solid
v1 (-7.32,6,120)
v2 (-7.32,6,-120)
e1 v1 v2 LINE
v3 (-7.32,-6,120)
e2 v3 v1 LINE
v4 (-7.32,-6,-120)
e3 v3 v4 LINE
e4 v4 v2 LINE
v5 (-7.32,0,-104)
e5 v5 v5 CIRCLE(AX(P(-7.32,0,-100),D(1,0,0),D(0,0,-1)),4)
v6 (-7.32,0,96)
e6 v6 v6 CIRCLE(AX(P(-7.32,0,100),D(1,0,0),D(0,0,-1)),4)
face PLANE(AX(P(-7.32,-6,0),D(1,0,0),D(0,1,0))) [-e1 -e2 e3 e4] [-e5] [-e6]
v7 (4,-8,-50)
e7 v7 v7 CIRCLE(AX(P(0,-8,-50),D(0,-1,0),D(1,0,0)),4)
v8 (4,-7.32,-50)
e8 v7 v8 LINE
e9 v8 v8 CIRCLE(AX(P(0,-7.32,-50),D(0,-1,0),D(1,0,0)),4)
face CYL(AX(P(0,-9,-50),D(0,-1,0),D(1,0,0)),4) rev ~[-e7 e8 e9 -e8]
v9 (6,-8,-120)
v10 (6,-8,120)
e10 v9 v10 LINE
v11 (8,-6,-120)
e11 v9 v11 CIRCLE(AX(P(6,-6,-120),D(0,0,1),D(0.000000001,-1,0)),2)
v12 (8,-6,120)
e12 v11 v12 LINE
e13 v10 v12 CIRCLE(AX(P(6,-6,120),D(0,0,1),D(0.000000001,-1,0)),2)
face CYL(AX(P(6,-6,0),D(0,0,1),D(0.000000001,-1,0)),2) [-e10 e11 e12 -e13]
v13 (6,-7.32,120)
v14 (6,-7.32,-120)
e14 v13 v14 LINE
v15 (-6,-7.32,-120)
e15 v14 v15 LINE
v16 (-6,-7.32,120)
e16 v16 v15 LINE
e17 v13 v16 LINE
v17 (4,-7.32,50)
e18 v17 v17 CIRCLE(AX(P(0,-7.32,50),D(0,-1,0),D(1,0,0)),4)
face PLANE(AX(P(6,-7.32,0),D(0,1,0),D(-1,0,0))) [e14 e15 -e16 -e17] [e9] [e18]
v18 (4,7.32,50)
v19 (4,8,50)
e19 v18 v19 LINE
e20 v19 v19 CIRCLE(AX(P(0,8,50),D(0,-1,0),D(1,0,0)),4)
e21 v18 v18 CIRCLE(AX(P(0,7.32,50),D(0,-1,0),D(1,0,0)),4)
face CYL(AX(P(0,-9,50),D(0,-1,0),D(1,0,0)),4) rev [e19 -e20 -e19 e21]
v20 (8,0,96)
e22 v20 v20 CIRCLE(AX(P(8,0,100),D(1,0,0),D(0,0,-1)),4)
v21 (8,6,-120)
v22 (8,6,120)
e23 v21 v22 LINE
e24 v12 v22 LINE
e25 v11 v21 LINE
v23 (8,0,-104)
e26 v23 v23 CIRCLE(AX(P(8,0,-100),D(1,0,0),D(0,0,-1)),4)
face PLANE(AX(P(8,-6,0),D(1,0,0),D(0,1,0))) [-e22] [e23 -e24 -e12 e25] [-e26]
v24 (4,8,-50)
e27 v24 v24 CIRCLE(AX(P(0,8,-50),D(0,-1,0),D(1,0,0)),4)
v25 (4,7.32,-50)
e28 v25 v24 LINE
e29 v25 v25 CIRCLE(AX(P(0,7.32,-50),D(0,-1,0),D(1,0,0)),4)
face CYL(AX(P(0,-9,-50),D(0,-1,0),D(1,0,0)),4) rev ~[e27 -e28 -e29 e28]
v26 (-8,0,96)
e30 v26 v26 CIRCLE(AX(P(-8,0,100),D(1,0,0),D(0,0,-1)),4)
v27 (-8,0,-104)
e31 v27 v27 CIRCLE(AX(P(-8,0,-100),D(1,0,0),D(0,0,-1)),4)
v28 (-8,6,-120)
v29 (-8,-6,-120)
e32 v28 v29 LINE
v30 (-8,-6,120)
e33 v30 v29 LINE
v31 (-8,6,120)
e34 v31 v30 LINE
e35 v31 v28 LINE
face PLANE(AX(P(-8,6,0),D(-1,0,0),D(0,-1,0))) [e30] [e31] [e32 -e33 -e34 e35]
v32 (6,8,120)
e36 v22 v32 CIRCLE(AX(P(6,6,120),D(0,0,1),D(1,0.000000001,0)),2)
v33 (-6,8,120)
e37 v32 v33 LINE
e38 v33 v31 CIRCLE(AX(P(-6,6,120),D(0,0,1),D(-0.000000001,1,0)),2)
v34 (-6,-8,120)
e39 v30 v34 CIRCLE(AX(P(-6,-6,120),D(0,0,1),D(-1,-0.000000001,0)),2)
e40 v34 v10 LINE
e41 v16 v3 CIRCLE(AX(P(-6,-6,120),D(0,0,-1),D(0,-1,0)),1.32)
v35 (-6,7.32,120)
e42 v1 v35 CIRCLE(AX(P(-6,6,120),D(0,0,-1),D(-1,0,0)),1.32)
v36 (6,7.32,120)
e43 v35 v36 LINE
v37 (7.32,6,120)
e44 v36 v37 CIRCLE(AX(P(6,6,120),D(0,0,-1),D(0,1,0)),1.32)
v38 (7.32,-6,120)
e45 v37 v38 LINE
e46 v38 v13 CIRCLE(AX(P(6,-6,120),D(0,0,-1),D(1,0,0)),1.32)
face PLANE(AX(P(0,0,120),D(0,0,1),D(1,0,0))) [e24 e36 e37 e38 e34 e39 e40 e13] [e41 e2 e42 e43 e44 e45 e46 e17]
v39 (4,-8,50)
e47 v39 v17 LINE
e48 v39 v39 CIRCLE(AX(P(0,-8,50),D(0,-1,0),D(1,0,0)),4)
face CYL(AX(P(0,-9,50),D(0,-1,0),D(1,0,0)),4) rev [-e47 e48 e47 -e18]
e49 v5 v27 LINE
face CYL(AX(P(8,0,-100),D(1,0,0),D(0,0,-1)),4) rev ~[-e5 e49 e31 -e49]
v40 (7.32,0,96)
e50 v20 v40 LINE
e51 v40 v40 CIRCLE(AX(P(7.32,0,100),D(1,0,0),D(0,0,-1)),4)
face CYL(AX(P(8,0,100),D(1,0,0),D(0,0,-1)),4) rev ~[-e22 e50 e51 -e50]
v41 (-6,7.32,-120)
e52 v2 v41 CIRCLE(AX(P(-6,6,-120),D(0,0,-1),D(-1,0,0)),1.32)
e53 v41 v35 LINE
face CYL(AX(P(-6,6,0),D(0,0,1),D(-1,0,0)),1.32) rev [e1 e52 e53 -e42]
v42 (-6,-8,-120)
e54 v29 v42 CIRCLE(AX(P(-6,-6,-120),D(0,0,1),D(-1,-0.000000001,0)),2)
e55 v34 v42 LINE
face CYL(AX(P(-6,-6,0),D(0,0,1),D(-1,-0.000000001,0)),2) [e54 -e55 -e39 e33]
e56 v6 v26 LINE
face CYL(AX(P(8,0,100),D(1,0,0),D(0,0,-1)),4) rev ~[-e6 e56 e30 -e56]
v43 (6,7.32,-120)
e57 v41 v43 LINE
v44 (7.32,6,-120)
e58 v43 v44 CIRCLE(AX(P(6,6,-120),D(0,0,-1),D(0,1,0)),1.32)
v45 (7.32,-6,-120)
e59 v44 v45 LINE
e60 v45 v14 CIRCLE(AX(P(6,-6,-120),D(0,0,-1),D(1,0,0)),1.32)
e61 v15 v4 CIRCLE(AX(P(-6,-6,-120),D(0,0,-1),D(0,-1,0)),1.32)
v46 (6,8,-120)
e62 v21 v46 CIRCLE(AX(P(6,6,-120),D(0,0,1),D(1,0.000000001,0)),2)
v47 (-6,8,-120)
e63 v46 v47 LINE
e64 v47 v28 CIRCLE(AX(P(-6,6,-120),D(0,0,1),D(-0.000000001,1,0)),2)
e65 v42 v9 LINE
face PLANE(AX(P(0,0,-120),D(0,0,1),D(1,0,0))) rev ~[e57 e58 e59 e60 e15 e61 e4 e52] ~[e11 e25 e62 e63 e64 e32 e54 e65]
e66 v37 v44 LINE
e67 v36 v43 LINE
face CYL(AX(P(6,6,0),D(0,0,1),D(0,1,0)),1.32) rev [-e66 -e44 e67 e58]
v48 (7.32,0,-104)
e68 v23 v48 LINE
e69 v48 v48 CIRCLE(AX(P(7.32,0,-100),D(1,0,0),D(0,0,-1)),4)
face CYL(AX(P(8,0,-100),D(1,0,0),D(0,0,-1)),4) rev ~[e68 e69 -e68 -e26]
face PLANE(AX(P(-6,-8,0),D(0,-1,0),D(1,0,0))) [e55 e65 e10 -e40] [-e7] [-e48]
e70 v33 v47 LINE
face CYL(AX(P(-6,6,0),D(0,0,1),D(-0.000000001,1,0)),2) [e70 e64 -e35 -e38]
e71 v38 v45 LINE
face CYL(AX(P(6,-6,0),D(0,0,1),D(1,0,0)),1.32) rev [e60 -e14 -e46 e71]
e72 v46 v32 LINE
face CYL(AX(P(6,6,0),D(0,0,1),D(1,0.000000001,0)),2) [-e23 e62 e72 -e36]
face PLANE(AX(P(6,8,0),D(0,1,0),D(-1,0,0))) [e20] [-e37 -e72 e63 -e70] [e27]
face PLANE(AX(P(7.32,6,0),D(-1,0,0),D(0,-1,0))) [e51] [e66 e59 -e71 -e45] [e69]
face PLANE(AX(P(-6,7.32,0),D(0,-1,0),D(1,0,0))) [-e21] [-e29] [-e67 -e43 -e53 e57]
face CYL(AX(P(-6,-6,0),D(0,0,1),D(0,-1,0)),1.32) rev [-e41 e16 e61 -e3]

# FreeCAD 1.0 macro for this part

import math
import FreeCAD as App
import Part
import Sketcher

V = App.Vector
Q = App.Units.Quantity

doc = App.newDocument("Part")
body = doc.addObject("PartDesign::Body", "Body")

# Sketch on XY plane
sketch1 = doc.addObject("Sketcher::SketchObject", "Sketch")
body.addObject(sketch1)
sketch1.AttachmentSupport = (doc.XY_Plane, [""])
sketch1.MapMode = "FlatFace"
sketch1.addGeometry([
    Part.LineSegment(V(-6, -8, 0), V(6, -8, 0)),  # 0
    Part.ArcOfCircle(Part.Circle(V(6, -6, 0), V(0, 0, 1), 2), math.radians(-90), math.radians(0)),  # 1
    Part.LineSegment(V(8, -6, 0), V(8, 6, 0)),  # 2
    Part.ArcOfCircle(Part.Circle(V(6, 6, 0), V(0, 0, 1), 2), math.radians(0), math.radians(90)),  # 3
    Part.LineSegment(V(6, 8, 0), V(-6, 8, 0)),  # 4
    Part.ArcOfCircle(Part.Circle(V(-6, 6, 0), V(0, 0, 1), 2), math.radians(90), math.radians(180)),  # 5
    Part.LineSegment(V(-8, 6, 0), V(-8, -6, 0)),  # 6
    Part.ArcOfCircle(Part.Circle(V(-6, -6, 0), V(0, 0, 1), 2), math.radians(-180), math.radians(-90)),  # 7
    Part.ArcOfCircle(Part.Circle(V(-6, 6, 0), V(0, 0, 1), 1.3), math.radians(90), math.radians(180)),  # 8
    Part.LineSegment(V(-6, 7.3, 0), V(6, 7.3, 0)),  # 9
    Part.ArcOfCircle(Part.Circle(V(6, 6, 0), V(0, 0, 1), 1.3), math.radians(0), math.radians(90)),  # 10
    Part.LineSegment(V(7.3, 6, 0), V(7.3, -6, 0)),  # 11
    Part.ArcOfCircle(Part.Circle(V(6, -6, 0), V(0, 0, 1), 1.3), math.radians(-90), math.radians(0)),  # 12
    Part.LineSegment(V(6, -7.3, 0), V(-6, -7.3, 0)),  # 13
    Part.ArcOfCircle(Part.Circle(V(-6, -6, 0), V(0, 0, 1), 1.3), math.radians(-180), math.radians(-90)),  # 14
    Part.LineSegment(V(-7.3, -6, 0), V(-7.3, 6, 0)),  # 15
], False)
sketch1.addConstraint([
    Sketcher.Constraint("Tangent", 0, 2, 1, 1),
    Sketcher.Constraint("Tangent", 1, 2, 2, 1),
    Sketcher.Constraint("Tangent", 2, 2, 3, 1),
    Sketcher.Constraint("Tangent", 3, 2, 4, 1),
    Sketcher.Constraint("Tangent", 4, 2, 5, 1),
    Sketcher.Constraint("Tangent", 5, 2, 6, 1),
    Sketcher.Constraint("Tangent", 6, 2, 7, 1),
    Sketcher.Constraint("Tangent", 7, 2, 0, 1),
    Sketcher.Constraint("Tangent", 8, 1, 9, 1),
    Sketcher.Constraint("Tangent", 9, 2, 10, 2),
    Sketcher.Constraint("Tangent", 10, 1, 11, 1),
    Sketcher.Constraint("Tangent", 11, 2, 12, 2),
    Sketcher.Constraint("Tangent", 12, 1, 13, 1),
    Sketcher.Constraint("Tangent", 13, 2, 14, 2),
    Sketcher.Constraint("Tangent", 14, 1, 15, 1),
    Sketcher.Constraint("Tangent", 15, 2, 8, 2),
    Sketcher.Constraint("Horizontal", 0),
    Sketcher.Constraint("Vertical", 2),
    Sketcher.Constraint("Horizontal", 4),
    Sketcher.Constraint("Vertical", 6),
    Sketcher.Constraint("Horizontal", 9),
    Sketcher.Constraint("Vertical", 11),
    Sketcher.Constraint("Horizontal", 13),
    Sketcher.Constraint("Vertical", 15),
    Sketcher.Constraint("Coincident", 8, 3, 5, 3),
    Sketcher.Constraint("Coincident", 10, 3, 3, 3),
    Sketcher.Constraint("Coincident", 12, 3, 1, 3),
    Sketcher.Constraint("Equal", 1, 3),
    Sketcher.Constraint("Equal", 3, 5),
    Sketcher.Constraint("Equal", 5, 7),
    Sketcher.Constraint("Equal", 12, 14),
    Sketcher.Constraint("Symmetric", 1, 3, 5, 3, -1, 1),
    Sketcher.Constraint("Equal", 13, 2),
    Sketcher.Constraint("Radius", 1, Q("2 mm")),
    Sketcher.Constraint("DistanceX", 0, 1, 0, 2, Q("12 mm")),
    Sketcher.Constraint("Radius", 8, Q("1.32 mm")),
])
pad1 = doc.addObject("PartDesign::Pad", "Pad")
body.addObject(pad1)
pad1.Profile = sketch1
pad1.Type = "TwoLengths"
pad1.Length = 120
pad1.Length2 = 120

# Sketch on XZ plane
sketch2 = doc.addObject("Sketcher::SketchObject", "Sketch001")
body.addObject(sketch2)
sketch2.AttachmentSupport = (doc.XZ_Plane, [""])
sketch2.MapMode = "FlatFace"
sketch2.AttachmentOffset = App.Placement(V(0, 0, 9), App.Rotation())
sketch2.addGeometry(Part.Circle(V(0, 50, 0), V(0, 0, 1), 4), False)
sketch2.addConstraint([
    Sketcher.Constraint("PointOnObject", 0, 3, -2),
    Sketcher.Constraint("Diameter", 0, Q("8 mm")),
    Sketcher.Constraint("DistanceY", -1, 1, 0, 3, Q("50 mm")),
])
pocket1 = doc.addObject("PartDesign::Pocket", "Pocket")
body.addObject(pocket1)
pocket1.Profile = sketch2
pocket1.Length = 18
doc.recompute()

mirrored = doc.addObject("PartDesign::Mirrored", "Mirrored")
body.addObject(mirrored)
mirrored.Originals = [pocket1]
mirrored.MirrorPlane = (doc.XY_Plane, [""])
body.Tip = mirrored

# Sketch on YZ plane
sketch3 = doc.addObject("Sketcher::SketchObject", "Sketch002")
body.addObject(sketch3)
sketch3.AttachmentSupport = (doc.YZ_Plane, [""])
sketch3.MapMode = "FlatFace"
sketch3.AttachmentOffset = App.Placement(V(0, 0, 8), App.Rotation())
sketch3.addGeometry([
    Part.Circle(V(0, 100, 0), V(0, 0, 1), 4),
    Part.Circle(V(0, -100, 0), V(0, 0, 1), 4),
], False)
sketch3.addConstraint([
    Sketcher.Constraint("Equal", 0, 1),
    Sketcher.Constraint("Symmetric", 0, 3, 1, 3, -1, 1),
    Sketcher.Constraint("PointOnObject", 0, 3, -2),
    Sketcher.Constraint("Diameter", 0, Q("8 mm")),
    Sketcher.Constraint("DistanceY", -1, 1, 0, 3, Q("100 mm")),
])
pocket2 = doc.addObject("PartDesign::Pocket", "Pocket001")
body.addObject(pocket2)
pocket2.Profile = sketch3
pocket2.Type = "ThroughAll"
pocket2.Midplane = True

doc.recompute()
